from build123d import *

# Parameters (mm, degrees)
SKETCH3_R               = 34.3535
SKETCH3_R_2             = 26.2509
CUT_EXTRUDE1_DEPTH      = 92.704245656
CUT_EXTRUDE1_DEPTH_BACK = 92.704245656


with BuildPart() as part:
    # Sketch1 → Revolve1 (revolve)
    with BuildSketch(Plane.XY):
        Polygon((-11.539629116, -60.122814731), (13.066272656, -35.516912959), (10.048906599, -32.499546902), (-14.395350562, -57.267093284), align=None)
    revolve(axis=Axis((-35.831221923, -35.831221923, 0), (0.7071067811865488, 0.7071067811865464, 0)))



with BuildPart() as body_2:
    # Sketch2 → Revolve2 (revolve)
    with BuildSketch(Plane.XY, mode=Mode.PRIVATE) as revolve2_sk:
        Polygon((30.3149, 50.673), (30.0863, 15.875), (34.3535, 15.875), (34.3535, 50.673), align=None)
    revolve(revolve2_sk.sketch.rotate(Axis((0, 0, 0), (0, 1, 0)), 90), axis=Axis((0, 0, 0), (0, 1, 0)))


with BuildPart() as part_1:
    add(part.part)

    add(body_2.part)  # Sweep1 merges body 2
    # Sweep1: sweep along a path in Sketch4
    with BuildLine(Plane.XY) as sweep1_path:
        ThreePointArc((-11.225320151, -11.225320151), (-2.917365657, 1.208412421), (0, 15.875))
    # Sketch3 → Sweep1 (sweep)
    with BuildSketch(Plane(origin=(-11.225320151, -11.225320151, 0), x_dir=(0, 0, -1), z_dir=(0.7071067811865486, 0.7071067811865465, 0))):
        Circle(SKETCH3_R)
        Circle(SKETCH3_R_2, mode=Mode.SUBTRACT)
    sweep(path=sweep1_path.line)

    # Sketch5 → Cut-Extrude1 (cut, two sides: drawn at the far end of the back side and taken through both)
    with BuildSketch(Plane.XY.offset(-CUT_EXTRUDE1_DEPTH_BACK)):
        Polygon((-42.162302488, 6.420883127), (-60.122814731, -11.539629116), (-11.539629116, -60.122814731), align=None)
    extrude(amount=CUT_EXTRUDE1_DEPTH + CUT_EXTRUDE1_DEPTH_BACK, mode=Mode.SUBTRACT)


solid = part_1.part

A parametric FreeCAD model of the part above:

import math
import FreeCAD as App
import Part
import Sketcher
from FreeCAD import Vector
Q = App.Units.Quantity


def add_polygon(sketch, points):
    """Adds a closed chain of lines whose ends are joined by coincident constraints."""
    first, n = sketch.GeometryCount, len(points)
    for a, b in zip(points, points[1:] + points[:1]):
        sketch.addGeometry(Part.LineSegment(App.Vector(*a, 0), App.Vector(*b, 0)), False)
    for i in range(n):
        sketch.addConstraint(Sketcher.Constraint("Coincident", first + i, 2, first + (i + 1) % n, 1))

doc = App.newDocument("Part")
body = doc.addObject("PartDesign::Body", "Body")

sketch1 = doc.addObject("Sketcher::SketchObject", "Sketch")
body.addObject(sketch1)
sketch1.AttachmentSupport = (doc.XY_Plane, [""])
sketch1.MapMode = "FlatFace"
add_polygon(sketch1, [(-11.539629, -60.122815), (13.066273, -35.516913), (10.048907, -32.499547), (-14.395351, -57.267093)])
sketch1.addGeometry(Part.LineSegment(Vector(-35.831222, -35.831222, 0), Vector(-11.22532, -11.22532, 0)), True)
sketch1.addConstraint([
    Sketcher.Constraint("Perpendicular", 0, 1),
    Sketcher.Constraint("Parallel", 1, 3),
    Sketcher.Constraint("Perpendicular", 3, 4),
    Sketcher.Constraint("Equal", 0, 4),
    Sketcher.Constraint("Angle", 0, Q("45 deg")),
    Sketcher.Constraint("Distance", 0, Q("1.37 in")),
    Sketcher.Constraint("Distance", 1, Q("0.168 in")),
    Sketcher.Constraint("Distance", 3, Q("0.159 in")),
    Sketcher.Constraint("DistanceX", 2, 2, -1, 1, 14.395351),
    Sketcher.Constraint("DistanceX", 4, 1, -1, 1, 35.831222),
    Sketcher.Constraint("DistanceY", 4, 1, -1, 1, 35.831222),
    Sketcher.Constraint("DistanceY", 2, 2, 4, 1, 21.435871),
])
revolution = doc.addObject("PartDesign::Revolution", "Revolution")
body.addObject(revolution)
revolution.Profile = sketch1
revolution.ReferenceAxis = (sketch1, ["Axis0"])
revolution.Angle = 360
body2 = doc.addObject("PartDesign::Body", "Body001")

sketch2 = doc.addObject("Sketcher::SketchObject", "Sketch001")
body2.addObject(sketch2)
sketch2.AttachmentSupport = (doc.getObject("XY_Plane001"), [""])
sketch2.MapMode = "FlatFace"
add_polygon(sketch2, [(30.3149, 50.673), (30.0863, 15.875), (34.3535, 15.875), (34.3535, 50.673)])
sketch2.addConstraint([
    Sketcher.Constraint("Horizontal", 1),
    Sketcher.Constraint("Vertical", 2),
    Sketcher.Constraint("Horizontal", 3),
    Sketcher.Constraint("DistanceY", 2, 1, 2, 2, Q("1.37 in")),
    Sketcher.Constraint("DistanceX", 1, 1, 1, 2, Q("0.168 in")),
    Sketcher.Constraint("DistanceX", 3, 2, 3, 1, Q("0.159 in")),
    Sketcher.Constraint("DistanceY", -1, 1, 0, 2, Q("0.625 in")),
    Sketcher.Constraint("DistanceX", -1, 1, 0, 2, Q("1.1845 in")),
])
revolution2 = doc.addObject("PartDesign::Revolution", "Revolution001")
body2.addObject(revolution2)
revolution2.Profile = sketch2
revolution2.ReferenceAxis = (sketch2, ["V_Axis"])
revolution2.Angle = 360
body.AllowCompound = True
doc.recompute()

boolean = doc.addObject("PartDesign::Boolean", "Boolean")
body.addObject(boolean)
boolean.Type = "Fuse"
boolean.addObjects([body2])

sketch3 = doc.addObject("Sketcher::SketchObject", "Sketch002")
body.addObject(sketch3)
sketch3.Placement = App.Placement(Vector(-11.22532, -11.22532, 0), App.Rotation(Vector(0, 0, -1), Vector(-0.707106781, 0.707106781, 0), Vector(0.707106781, 0.707106781, 0), "ZXY"))
sketch3.addGeometry([
    Part.Circle(Vector(0, 0, 0), Vector(0, 0, 1), 34.3535),
    Part.Circle(Vector(0, 0, 0), Vector(0, 0, 1), 26.2509),
], False)
sketch3.addConstraint([
    Sketcher.Constraint("Coincident", 0, 3, -1, 1),
    Sketcher.Constraint("Coincident", 1, 3, -1, 1),
    Sketcher.Constraint("Diameter", 0, Q("2.705 in")),
    Sketcher.Constraint("Diameter", 1, Q("2.067 in")),
])

sketch4 = doc.addObject("Sketcher::SketchObject", "Sketch003")
body.addObject(sketch4)
sketch4.AttachmentSupport = (doc.XY_Plane, [""])
sketch4.MapMode = "FlatFace"
sketch4.addGeometry(Part.ArcOfCircle(Part.Circle(Vector(-38.32564, 15.875, 0), Vector(0, 0, 1), 38.32564), math.radians(-45), math.radians(0)), False)
sketch4.addConstraint([
    Sketcher.Constraint("PointOnObject", 0, 2, -2),
    Sketcher.Constraint("DistanceY", -1, 1, 0, 3, Q("0.625 in")),
    Sketcher.Constraint("DistanceY", -1, 1, 0, 2, Q("0.625 in")),
    Sketcher.Constraint("Radius", 0, 38.32564),
    Sketcher.Constraint("DistanceX", 0, 1, -1, 1, 11.22532),
])
doc.recompute()

additivepipe = doc.addObject("PartDesign::AdditivePipe", "AdditivePipe")
body.addObject(additivepipe)
additivepipe.Profile = sketch3
additivepipe.Spine = (sketch4, ["Edge1"])

sketch5 = doc.addObject("Sketcher::SketchObject", "Sketch004")
body.addObject(sketch5)
sketch5.AttachmentSupport = (doc.XY_Plane, [""])
sketch5.MapMode = "FlatFace"
add_polygon(sketch5, [(-42.162302, 6.420883), (-60.122815, -11.539629), (-11.539629, -60.122815)])
sketch5.addConstraint([
    Sketcher.Constraint("Perpendicular", 0, 1),
    Sketcher.Constraint("Distance", 0, Q("1 in")),
    Sketcher.Constraint("Angle", 0, Q("-135 deg")),
    Sketcher.Constraint("Distance", 1, Q("2.705 in")),
    Sketcher.Constraint("DistanceY", 0, 2, -1, 1, 11.539629),
    Sketcher.Constraint("DistanceX", 1, 2, -1, 1, 11.539629),
])
pocket1 = doc.addObject("PartDesign::Pocket", "Pocket")
body.addObject(pocket1)
pocket1.Profile = sketch5
pocket1.Type = "ThroughAll"
pocket1.Midplane = True

doc.recompute()
